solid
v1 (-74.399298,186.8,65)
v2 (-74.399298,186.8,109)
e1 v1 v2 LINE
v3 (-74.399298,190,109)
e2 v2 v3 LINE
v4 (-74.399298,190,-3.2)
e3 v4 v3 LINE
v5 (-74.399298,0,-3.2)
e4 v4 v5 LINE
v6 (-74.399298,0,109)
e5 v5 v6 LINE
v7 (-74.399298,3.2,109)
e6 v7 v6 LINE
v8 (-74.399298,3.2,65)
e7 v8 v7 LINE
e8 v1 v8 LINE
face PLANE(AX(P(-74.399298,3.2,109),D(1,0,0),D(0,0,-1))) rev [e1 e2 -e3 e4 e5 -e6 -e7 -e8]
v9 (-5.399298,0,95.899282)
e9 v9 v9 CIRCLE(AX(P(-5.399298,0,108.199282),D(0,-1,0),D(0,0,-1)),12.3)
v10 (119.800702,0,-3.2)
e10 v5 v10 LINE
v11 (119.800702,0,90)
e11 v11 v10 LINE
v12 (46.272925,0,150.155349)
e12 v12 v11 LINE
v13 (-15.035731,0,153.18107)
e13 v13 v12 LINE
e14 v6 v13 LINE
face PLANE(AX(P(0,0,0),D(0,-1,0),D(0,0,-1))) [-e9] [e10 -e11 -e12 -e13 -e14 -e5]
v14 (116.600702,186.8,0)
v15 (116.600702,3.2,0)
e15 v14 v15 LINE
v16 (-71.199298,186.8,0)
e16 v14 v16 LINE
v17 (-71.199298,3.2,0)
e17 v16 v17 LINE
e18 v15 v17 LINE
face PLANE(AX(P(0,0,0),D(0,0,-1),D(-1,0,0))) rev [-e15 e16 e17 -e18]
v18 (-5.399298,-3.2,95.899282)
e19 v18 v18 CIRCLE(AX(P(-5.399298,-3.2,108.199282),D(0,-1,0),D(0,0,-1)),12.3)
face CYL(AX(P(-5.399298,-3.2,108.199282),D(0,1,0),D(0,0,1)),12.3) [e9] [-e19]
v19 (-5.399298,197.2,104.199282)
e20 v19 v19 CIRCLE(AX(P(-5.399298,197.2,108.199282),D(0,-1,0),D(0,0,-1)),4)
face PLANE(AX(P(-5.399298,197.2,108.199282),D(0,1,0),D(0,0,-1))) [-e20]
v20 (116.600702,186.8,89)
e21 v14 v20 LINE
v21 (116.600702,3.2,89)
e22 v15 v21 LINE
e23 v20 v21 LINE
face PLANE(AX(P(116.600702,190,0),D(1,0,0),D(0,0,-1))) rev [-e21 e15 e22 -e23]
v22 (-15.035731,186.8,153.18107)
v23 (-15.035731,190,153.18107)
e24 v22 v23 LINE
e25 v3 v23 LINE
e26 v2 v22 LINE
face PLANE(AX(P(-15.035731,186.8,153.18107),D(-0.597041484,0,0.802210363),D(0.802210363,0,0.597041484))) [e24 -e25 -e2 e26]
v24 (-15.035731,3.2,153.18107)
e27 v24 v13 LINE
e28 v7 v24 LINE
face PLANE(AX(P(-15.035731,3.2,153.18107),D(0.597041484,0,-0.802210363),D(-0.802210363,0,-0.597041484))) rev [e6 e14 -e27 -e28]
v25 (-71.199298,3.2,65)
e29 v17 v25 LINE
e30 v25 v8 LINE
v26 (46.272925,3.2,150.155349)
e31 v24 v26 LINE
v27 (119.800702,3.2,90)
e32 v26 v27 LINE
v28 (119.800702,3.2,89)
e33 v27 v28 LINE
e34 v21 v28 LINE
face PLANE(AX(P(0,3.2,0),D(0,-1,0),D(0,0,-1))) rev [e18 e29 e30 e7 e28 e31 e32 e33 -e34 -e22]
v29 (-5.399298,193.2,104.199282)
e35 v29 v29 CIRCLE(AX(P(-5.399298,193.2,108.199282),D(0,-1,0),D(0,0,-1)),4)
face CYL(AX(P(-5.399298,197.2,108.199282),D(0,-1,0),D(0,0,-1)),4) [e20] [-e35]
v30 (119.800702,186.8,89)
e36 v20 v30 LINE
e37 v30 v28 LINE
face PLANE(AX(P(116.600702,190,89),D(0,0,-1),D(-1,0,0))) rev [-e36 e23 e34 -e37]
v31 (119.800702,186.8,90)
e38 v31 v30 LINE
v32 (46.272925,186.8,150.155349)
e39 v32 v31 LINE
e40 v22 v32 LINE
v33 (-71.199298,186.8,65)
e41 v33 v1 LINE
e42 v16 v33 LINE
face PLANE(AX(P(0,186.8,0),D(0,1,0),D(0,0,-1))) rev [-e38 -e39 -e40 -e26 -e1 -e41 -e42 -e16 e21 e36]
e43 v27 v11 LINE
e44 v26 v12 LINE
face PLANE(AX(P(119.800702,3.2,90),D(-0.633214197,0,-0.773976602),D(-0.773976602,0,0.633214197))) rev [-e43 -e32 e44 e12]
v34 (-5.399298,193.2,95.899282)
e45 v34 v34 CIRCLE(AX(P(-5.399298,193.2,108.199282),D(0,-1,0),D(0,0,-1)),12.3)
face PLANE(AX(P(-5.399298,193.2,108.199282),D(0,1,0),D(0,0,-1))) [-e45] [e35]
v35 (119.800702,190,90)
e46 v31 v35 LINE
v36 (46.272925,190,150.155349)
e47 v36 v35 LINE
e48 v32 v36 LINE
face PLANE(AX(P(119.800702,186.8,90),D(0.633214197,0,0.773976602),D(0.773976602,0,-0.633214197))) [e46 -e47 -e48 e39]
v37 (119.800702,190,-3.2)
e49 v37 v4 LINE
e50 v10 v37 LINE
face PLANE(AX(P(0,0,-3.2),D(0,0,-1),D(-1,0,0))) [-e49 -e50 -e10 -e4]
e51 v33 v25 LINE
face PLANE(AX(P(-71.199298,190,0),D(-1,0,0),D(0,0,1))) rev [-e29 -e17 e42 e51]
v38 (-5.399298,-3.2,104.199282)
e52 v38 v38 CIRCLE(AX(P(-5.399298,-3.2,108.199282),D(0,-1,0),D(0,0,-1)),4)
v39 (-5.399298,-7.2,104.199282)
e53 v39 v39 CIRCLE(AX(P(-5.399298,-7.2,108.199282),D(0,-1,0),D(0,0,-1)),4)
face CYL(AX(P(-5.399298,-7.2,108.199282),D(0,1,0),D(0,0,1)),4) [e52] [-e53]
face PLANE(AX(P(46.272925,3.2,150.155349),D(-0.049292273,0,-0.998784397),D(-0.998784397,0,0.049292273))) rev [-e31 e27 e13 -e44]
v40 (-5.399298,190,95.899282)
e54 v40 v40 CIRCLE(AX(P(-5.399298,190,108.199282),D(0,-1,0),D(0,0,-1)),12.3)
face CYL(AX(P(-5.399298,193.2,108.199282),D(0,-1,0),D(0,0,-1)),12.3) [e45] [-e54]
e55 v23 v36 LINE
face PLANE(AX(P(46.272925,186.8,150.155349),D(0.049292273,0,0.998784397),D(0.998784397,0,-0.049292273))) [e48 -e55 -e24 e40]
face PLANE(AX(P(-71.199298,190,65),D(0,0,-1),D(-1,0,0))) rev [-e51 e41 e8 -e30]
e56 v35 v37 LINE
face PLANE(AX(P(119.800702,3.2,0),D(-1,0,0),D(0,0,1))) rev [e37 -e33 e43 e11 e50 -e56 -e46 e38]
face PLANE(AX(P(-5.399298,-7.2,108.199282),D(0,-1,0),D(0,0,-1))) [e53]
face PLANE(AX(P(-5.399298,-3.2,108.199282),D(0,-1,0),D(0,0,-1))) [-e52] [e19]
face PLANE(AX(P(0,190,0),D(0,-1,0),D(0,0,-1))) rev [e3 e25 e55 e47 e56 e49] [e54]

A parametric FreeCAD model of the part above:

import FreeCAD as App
import Part
import Sketcher

doc = App.newDocument("Part")
body = doc.addObject("PartDesign::Body", "Body")

# Sketch on XZ plane
sketch1 = body.newObject("Sketcher::SketchObject", "Sketch")
sketch1.AttachmentSupport = (doc.getObject("XZ_Plane"), [""])
sketch1.MapMode = "FlatFace"
sketch1.addGeometry(Part.LineSegment(App.Vector(119.800702, 0, 0), App.Vector(-71.199298, 0, 0)), False)
sketch1.addGeometry(Part.LineSegment(App.Vector(-71.199298, 0, 0), App.Vector(-71.199298, 65, 0)), False)
sketch1.addGeometry(Part.LineSegment(App.Vector(-71.199298, 65, 0), App.Vector(-74.399298, 65, 0)), False)
sketch1.addGeometry(Part.LineSegment(App.Vector(-74.399298, 65, 0), App.Vector(-74.399298, 109, 0)), False)
sketch1.addGeometry(Part.LineSegment(App.Vector(-74.399298, 109, 0), App.Vector(-15.035731, 153.18107, 0)), False)
sketch1.addGeometry(Part.LineSegment(App.Vector(-15.035731, 153.18107, 0), App.Vector(46.272925, 150.155349, 0)), False)
sketch1.addGeometry(Part.LineSegment(App.Vector(46.272925, 150.155349, 0), App.Vector(119.800702, 90, 0)), False)
sketch1.addGeometry(Part.LineSegment(App.Vector(119.800702, 90, 0), App.Vector(119.800702, 0, 0)), False)
sketch1.addConstraint(Sketcher.Constraint("Coincident", 0, 2, 1, 1))
sketch1.addConstraint(Sketcher.Constraint("Coincident", 1, 2, 2, 1))
sketch1.addConstraint(Sketcher.Constraint("Coincident", 2, 2, 3, 1))
sketch1.addConstraint(Sketcher.Constraint("Coincident", 3, 2, 4, 1))
sketch1.addConstraint(Sketcher.Constraint("Coincident", 4, 2, 5, 1))
sketch1.addConstraint(Sketcher.Constraint("Coincident", 5, 2, 6, 1))
sketch1.addConstraint(Sketcher.Constraint("Coincident", 6, 2, 7, 1))
sketch1.addConstraint(Sketcher.Constraint("Coincident", 7, 2, 0, 1))
sketch1.addConstraint(Sketcher.Constraint("Horizontal", 0))
sketch1.addConstraint(Sketcher.Constraint("Vertical", 1))
sketch1.addConstraint(Sketcher.Constraint("Horizontal", 2))
sketch1.addConstraint(Sketcher.Constraint("Vertical", 3))
sketch1.addConstraint(Sketcher.Constraint("Vertical", 7))
sketch1.addConstraint(Sketcher.Constraint("PointOnObject", 0, 2, -1))
sketch1.addConstraint(Sketcher.Constraint("DistanceX", 0, 2, 0, 1, 191.0))
sketch1.addConstraint(Sketcher.Constraint("DistanceY", 1, 1, 1, 2, 65.0))
sketch1.addConstraint(Sketcher.Constraint("DistanceY", 3, 1, 3, 2, 44.0))
sketch1.addConstraint(Sketcher.Constraint("DistanceY", 7, 2, 7, 1, 90.0))
sketch1.addConstraint(Sketcher.Constraint("Distance", 4, 74.0))
sketch1.addConstraint(Sketcher.Constraint("Distance", 6, 95.0))
sketch1.addConstraint(Sketcher.Constraint("DistanceX", 2, 2, 2, 1, 3.2))
sketch1.addConstraint(Sketcher.Constraint("DistanceX", 4, 2, -1, 1, 15.035731))
sketch1.addConstraint(Sketcher.Constraint("DistanceY", -1, 1, 4, 2, 153.18107))
sketch1.addConstraint(Sketcher.Constraint("DistanceY", -1, 1, 5, 2, 150.155349))
pad1 = body.newObject("PartDesign::Pad", "Pad")
pad1.Profile = sketch1
pad1.Length = 3.2
pad1.Reversed = True

# Sketch on XZ plane
sketch2 = body.newObject("Sketcher::SketchObject", "Sketch001")
sketch2.AttachmentSupport = (doc.getObject("XZ_Plane"), [""])
sketch2.MapMode = "FlatFace"
sketch2.addGeometry(Part.Circle(App.Vector(-5.399298, 108.199282, 0), App.Vector(0, 0, 1), 12.3), False)
sketch2.addConstraint(Sketcher.Constraint("Diameter", 0, 24.6))
sketch2.addConstraint(Sketcher.Constraint("DistanceY", -1, 1, 0, 3, 108.199282))
sketch2.addConstraint(Sketcher.Constraint("DistanceX", 0, 3, -1, 1, 5.399298))
pad2 = body.newObject("PartDesign::Pad", "Pad001")
pad2.Profile = sketch2
pad2.Length = 3.2

# Sketch on XZ plane
sketch3 = body.newObject("Sketcher::SketchObject", "Sketch002")
sketch3.AttachmentSupport = (doc.getObject("XZ_Plane"), [""])
sketch3.MapMode = "FlatFace"
sketch3.AttachmentOffset = App.Placement(App.Vector(0, 0, 3.2), App.Rotation())
sketch3.addGeometry(Part.Circle(App.Vector(-5.399298, 108.199282, 0), App.Vector(0, 0, 1), 4), False)
sketch3.addConstraint(Sketcher.Constraint("Diameter", 0, 8.0))
sketch3.addConstraint(Sketcher.Constraint("DistanceY", -1, 1, 0, 3, 108.199282))
sketch3.addConstraint(Sketcher.Constraint("DistanceX", 0, 3, -1, 1, 5.399298))
pad3 = body.newObject("PartDesign::Pad", "Pad002")
pad3.Profile = sketch3
pad3.Length = 4

# Sketch on XZ plane
sketch4 = body.newObject("Sketcher::SketchObject", "Sketch003")
sketch4.AttachmentSupport = (doc.getObject("XZ_Plane"), [""])
sketch4.MapMode = "FlatFace"
sketch4.addGeometry(Part.LineSegment(App.Vector(-74.399298, 0, 0), App.Vector(-74.399298, 65, 0)), False)
sketch4.addGeometry(Part.LineSegment(App.Vector(-74.399298, 65, 0), App.Vector(-71.199298, 65, 0)), False)
sketch4.addGeometry(Part.LineSegment(App.Vector(-71.199298, 65, 0), App.Vector(-71.199298, 0, 0)), False)
sketch4.addGeometry(Part.LineSegment(App.Vector(-71.199298, 0, 0), App.Vector(-74.399298, 0, 0)), False)
sketch4.addConstraint(Sketcher.Constraint("Coincident", 0, 2, 1, 1))
sketch4.addConstraint(Sketcher.Constraint("Coincident", 1, 2, 2, 1))
sketch4.addConstraint(Sketcher.Constraint("Coincident", 2, 2, 3, 1))
sketch4.addConstraint(Sketcher.Constraint("Coincident", 3, 2, 0, 1))
sketch4.addConstraint(Sketcher.Constraint("Vertical", 0))
sketch4.addConstraint(Sketcher.Constraint("Horizontal", 1))
sketch4.addConstraint(Sketcher.Constraint("Vertical", 2))
sketch4.addConstraint(Sketcher.Constraint("Horizontal", 3))
sketch4.addConstraint(Sketcher.Constraint("PointOnObject", 2, 2, -1))
sketch4.addConstraint(Sketcher.Constraint("DistanceY", 0, 1, 0, 2, 65.0))
sketch4.addConstraint(Sketcher.Constraint("DistanceX", 1, 1, 1, 2, 3.2))
sketch4.addConstraint(Sketcher.Constraint("DistanceX", 0, 2, -1, 1, 74.399298))
pad4 = body.newObject("PartDesign::Pad", "Pad003")
pad4.Profile = sketch4
pad4.Length = 190
pad4.Reversed = True

# Sketch on XZ plane
sketch5 = body.newObject("Sketcher::SketchObject", "Sketch004")
sketch5.AttachmentSupport = (doc.getObject("XZ_Plane"), [""])
sketch5.MapMode = "FlatFace"
sketch5.addGeometry(Part.LineSegment(App.Vector(116.600702, 0, 0), App.Vector(116.600702, 89, 0)), False)
sketch5.addGeometry(Part.LineSegment(App.Vector(116.600702, 89, 0), App.Vector(119.800702, 89, 0)), False)
sketch5.addGeometry(Part.LineSegment(App.Vector(119.800702, 89, 0), App.Vector(119.800702, 0, 0)), False)
sketch5.addGeometry(Part.LineSegment(App.Vector(119.800702, 0, 0), App.Vector(116.600702, 0, 0)), False)
sketch5.addConstraint(Sketcher.Constraint("Coincident", 0, 2, 1, 1))
sketch5.addConstraint(Sketcher.Constraint("Coincident", 1, 2, 2, 1))
sketch5.addConstraint(Sketcher.Constraint("Coincident", 2, 2, 3, 1))
sketch5.addConstraint(Sketcher.Constraint("Coincident", 3, 2, 0, 1))
sketch5.addConstraint(Sketcher.Constraint("Vertical", 0))
sketch5.addConstraint(Sketcher.Constraint("Horizontal", 1))
sketch5.addConstraint(Sketcher.Constraint("Vertical", 2))
sketch5.addConstraint(Sketcher.Constraint("Horizontal", 3))
sketch5.addConstraint(Sketcher.Constraint("PointOnObject", 2, 2, -1))
sketch5.addConstraint(Sketcher.Constraint("DistanceY", 0, 1, 0, 2, 89.0))
sketch5.addConstraint(Sketcher.Constraint("DistanceX", 1, 1, 1, 2, 3.2))
sketch5.addConstraint(Sketcher.Constraint("DistanceX", -1, 1, 0, 2, 116.600702))
pad5 = body.newObject("PartDesign::Pad", "Pad004")
pad5.Profile = sketch5
pad5.Length = 190
pad5.Reversed = True
doc.recompute()

datumplane = body.newObject("PartDesign::Plane", "DatumPlane")
datumplane.AttachmentSupport = (doc.getObject("XZ_Plane"), [""])
datumplane.MapMode = "FlatFace"
datumplane.AttachmentOffset = App.Placement(App.Vector(0, 0, -95), App.Rotation())
mirrored = body.newObject("PartDesign::Mirrored", "Mirrored")
mirrored.Originals = [pad1, pad2, pad3]
mirrored.MirrorPlane = (datumplane, [""])
body.Tip = mirrored

# Sketch on XY plane
sketch6 = body.newObject("Sketcher::SketchObject", "Sketch005")
sketch6.AttachmentSupport = (doc.getObject("XY_Plane"), [""])
sketch6.MapMode = "FlatFace"
sketch6.addGeometry(Part.LineSegment(App.Vector(-74.399298, 190, 0), App.Vector(-74.399298, 0, 0)), False)
sketch6.addGeometry(Part.LineSegment(App.Vector(-74.399298, 0, 0), App.Vector(119.800702, 0, 0)), False)
sketch6.addGeometry(Part.LineSegment(App.Vector(119.800702, 0, 0), App.Vector(119.800702, 190, 0)), False)
sketch6.addGeometry(Part.LineSegment(App.Vector(119.800702, 190, 0), App.Vector(-74.399298, 190, 0)), False)
sketch6.addConstraint(Sketcher.Constraint("Coincident", 0, 2, 1, 1))
sketch6.addConstraint(Sketcher.Constraint("Coincident", 1, 2, 2, 1))
sketch6.addConstraint(Sketcher.Constraint("Coincident", 2, 2, 3, 1))
sketch6.addConstraint(Sketcher.Constraint("Coincident", 3, 2, 0, 1))
sketch6.addConstraint(Sketcher.Constraint("Vertical", 0))
sketch6.addConstraint(Sketcher.Constraint("Horizontal", 1))
sketch6.addConstraint(Sketcher.Constraint("Vertical", 2))
sketch6.addConstraint(Sketcher.Constraint("Horizontal", 3))
sketch6.addConstraint(Sketcher.Constraint("PointOnObject", 0, 2, -1))
sketch6.addConstraint(Sketcher.Constraint("DistanceY", 0, 2, 0, 1, 190.0))
sketch6.addConstraint(Sketcher.Constraint("DistanceX", 1, 1, 1, 2, 194.2))
sketch6.addConstraint(Sketcher.Constraint("DistanceX", 0, 2, -1, 1, 74.399298))
pad6 = body.newObject("PartDesign::Pad", "Pad005")
pad6.Profile = sketch6
pad6.Length = 3.2
pad6.Reversed = True

doc.recompute()
